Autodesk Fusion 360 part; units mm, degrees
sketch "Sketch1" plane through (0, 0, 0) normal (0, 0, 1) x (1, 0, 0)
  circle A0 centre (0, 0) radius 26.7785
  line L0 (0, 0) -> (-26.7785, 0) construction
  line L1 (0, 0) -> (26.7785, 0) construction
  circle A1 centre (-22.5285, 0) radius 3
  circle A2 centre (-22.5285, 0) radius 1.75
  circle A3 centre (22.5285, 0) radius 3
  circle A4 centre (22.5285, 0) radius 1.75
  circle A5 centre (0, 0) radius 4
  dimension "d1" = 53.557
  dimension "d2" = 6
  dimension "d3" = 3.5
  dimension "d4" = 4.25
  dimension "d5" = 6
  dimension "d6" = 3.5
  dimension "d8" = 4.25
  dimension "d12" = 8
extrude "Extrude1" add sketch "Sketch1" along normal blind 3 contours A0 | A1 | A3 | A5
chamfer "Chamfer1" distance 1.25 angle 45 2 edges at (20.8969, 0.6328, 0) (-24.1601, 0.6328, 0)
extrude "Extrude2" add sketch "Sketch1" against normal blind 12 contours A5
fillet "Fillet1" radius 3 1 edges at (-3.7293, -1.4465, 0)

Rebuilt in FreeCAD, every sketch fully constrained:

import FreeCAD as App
import Part
import Sketcher
from FreeCAD import Vector


def edges_at(feature, points):
    """Names of the edges that pass closest to the given points."""
    edges = feature.Shape.Edges
    near = lambda p: min(range(len(edges)), key=lambda i: edges[i].distToShape(Part.Vertex(*p))[0])
    return sorted({f"Edge{near(p) + 1}" for p in points})

doc = App.newDocument("Part")
body = doc.addObject("PartDesign::Body", "Body")

# Sketch on XY plane
sketch1 = body.newObject("Sketcher::SketchObject", "Sketch")
sketch1.AttachmentSupport = (doc.getObject("XY_Plane"), [""])
sketch1.MapMode = "FlatFace"
sketch1.addGeometry([
    Part.Circle(Vector(0, 0, 0), Vector(0, 0, 1), 26.8),
    Part.Circle(Vector(-22.5, 0, 0), Vector(0, 0, 1), 1.8),
    Part.Circle(Vector(22.5, 0, 0), Vector(0, 0, 1), 1.8),
], False)
sketch1.addConstraint([
    Sketcher.Constraint("Coincident", 0, 3, -1, 1),
    Sketcher.Constraint("Equal", 1, 2),
    Sketcher.Constraint("Symmetric", 1, 3, 2, 3, -1, 1),
    Sketcher.Constraint("PointOnObject", 1, 3, -1),
    Sketcher.Constraint("Diameter", 1, 3.5),
    Sketcher.Constraint("Diameter", 0, 53.557),
    Sketcher.Constraint("DistanceX", 1, 3, 2, 3, 45.057),
])
pad1 = body.newObject("PartDesign::Pad", "Pad")
pad1.Profile = sketch1
pad1.Length = 3
doc.recompute()

chamfer = body.newObject("PartDesign::Chamfer", "Chamfer")
chamfer.Base = (pad1, edges_at(pad1, [(20.897, 0.633, 0), (-24.16, 0.633, 0)]))
chamfer.Size = 1.25

# Sketch on XY plane
sketch2 = body.newObject("Sketcher::SketchObject", "Sketch001")
sketch2.AttachmentSupport = (doc.getObject("XY_Plane"), [""])
sketch2.MapMode = "FlatFace"
sketch2.addGeometry(Part.Circle(Vector(0, 0, 0), Vector(0, 0, 1), 4), False)
sketch2.addConstraint([
    Sketcher.Constraint("Coincident", 0, 3, -1, 1),
    Sketcher.Constraint("Diameter", 0, 8.0),
])
pad2 = body.newObject("PartDesign::Pad", "Pad001")
pad2.Profile = sketch2
pad2.Length = 12
pad2.Reversed = True
doc.recompute()

fillet = body.newObject("PartDesign::Fillet", "Fillet")
fillet.Base = (pad2, edges_at(pad2, [(-3.729, -1.446, 0)]))
fillet.Radius = 3

doc.recompute()
